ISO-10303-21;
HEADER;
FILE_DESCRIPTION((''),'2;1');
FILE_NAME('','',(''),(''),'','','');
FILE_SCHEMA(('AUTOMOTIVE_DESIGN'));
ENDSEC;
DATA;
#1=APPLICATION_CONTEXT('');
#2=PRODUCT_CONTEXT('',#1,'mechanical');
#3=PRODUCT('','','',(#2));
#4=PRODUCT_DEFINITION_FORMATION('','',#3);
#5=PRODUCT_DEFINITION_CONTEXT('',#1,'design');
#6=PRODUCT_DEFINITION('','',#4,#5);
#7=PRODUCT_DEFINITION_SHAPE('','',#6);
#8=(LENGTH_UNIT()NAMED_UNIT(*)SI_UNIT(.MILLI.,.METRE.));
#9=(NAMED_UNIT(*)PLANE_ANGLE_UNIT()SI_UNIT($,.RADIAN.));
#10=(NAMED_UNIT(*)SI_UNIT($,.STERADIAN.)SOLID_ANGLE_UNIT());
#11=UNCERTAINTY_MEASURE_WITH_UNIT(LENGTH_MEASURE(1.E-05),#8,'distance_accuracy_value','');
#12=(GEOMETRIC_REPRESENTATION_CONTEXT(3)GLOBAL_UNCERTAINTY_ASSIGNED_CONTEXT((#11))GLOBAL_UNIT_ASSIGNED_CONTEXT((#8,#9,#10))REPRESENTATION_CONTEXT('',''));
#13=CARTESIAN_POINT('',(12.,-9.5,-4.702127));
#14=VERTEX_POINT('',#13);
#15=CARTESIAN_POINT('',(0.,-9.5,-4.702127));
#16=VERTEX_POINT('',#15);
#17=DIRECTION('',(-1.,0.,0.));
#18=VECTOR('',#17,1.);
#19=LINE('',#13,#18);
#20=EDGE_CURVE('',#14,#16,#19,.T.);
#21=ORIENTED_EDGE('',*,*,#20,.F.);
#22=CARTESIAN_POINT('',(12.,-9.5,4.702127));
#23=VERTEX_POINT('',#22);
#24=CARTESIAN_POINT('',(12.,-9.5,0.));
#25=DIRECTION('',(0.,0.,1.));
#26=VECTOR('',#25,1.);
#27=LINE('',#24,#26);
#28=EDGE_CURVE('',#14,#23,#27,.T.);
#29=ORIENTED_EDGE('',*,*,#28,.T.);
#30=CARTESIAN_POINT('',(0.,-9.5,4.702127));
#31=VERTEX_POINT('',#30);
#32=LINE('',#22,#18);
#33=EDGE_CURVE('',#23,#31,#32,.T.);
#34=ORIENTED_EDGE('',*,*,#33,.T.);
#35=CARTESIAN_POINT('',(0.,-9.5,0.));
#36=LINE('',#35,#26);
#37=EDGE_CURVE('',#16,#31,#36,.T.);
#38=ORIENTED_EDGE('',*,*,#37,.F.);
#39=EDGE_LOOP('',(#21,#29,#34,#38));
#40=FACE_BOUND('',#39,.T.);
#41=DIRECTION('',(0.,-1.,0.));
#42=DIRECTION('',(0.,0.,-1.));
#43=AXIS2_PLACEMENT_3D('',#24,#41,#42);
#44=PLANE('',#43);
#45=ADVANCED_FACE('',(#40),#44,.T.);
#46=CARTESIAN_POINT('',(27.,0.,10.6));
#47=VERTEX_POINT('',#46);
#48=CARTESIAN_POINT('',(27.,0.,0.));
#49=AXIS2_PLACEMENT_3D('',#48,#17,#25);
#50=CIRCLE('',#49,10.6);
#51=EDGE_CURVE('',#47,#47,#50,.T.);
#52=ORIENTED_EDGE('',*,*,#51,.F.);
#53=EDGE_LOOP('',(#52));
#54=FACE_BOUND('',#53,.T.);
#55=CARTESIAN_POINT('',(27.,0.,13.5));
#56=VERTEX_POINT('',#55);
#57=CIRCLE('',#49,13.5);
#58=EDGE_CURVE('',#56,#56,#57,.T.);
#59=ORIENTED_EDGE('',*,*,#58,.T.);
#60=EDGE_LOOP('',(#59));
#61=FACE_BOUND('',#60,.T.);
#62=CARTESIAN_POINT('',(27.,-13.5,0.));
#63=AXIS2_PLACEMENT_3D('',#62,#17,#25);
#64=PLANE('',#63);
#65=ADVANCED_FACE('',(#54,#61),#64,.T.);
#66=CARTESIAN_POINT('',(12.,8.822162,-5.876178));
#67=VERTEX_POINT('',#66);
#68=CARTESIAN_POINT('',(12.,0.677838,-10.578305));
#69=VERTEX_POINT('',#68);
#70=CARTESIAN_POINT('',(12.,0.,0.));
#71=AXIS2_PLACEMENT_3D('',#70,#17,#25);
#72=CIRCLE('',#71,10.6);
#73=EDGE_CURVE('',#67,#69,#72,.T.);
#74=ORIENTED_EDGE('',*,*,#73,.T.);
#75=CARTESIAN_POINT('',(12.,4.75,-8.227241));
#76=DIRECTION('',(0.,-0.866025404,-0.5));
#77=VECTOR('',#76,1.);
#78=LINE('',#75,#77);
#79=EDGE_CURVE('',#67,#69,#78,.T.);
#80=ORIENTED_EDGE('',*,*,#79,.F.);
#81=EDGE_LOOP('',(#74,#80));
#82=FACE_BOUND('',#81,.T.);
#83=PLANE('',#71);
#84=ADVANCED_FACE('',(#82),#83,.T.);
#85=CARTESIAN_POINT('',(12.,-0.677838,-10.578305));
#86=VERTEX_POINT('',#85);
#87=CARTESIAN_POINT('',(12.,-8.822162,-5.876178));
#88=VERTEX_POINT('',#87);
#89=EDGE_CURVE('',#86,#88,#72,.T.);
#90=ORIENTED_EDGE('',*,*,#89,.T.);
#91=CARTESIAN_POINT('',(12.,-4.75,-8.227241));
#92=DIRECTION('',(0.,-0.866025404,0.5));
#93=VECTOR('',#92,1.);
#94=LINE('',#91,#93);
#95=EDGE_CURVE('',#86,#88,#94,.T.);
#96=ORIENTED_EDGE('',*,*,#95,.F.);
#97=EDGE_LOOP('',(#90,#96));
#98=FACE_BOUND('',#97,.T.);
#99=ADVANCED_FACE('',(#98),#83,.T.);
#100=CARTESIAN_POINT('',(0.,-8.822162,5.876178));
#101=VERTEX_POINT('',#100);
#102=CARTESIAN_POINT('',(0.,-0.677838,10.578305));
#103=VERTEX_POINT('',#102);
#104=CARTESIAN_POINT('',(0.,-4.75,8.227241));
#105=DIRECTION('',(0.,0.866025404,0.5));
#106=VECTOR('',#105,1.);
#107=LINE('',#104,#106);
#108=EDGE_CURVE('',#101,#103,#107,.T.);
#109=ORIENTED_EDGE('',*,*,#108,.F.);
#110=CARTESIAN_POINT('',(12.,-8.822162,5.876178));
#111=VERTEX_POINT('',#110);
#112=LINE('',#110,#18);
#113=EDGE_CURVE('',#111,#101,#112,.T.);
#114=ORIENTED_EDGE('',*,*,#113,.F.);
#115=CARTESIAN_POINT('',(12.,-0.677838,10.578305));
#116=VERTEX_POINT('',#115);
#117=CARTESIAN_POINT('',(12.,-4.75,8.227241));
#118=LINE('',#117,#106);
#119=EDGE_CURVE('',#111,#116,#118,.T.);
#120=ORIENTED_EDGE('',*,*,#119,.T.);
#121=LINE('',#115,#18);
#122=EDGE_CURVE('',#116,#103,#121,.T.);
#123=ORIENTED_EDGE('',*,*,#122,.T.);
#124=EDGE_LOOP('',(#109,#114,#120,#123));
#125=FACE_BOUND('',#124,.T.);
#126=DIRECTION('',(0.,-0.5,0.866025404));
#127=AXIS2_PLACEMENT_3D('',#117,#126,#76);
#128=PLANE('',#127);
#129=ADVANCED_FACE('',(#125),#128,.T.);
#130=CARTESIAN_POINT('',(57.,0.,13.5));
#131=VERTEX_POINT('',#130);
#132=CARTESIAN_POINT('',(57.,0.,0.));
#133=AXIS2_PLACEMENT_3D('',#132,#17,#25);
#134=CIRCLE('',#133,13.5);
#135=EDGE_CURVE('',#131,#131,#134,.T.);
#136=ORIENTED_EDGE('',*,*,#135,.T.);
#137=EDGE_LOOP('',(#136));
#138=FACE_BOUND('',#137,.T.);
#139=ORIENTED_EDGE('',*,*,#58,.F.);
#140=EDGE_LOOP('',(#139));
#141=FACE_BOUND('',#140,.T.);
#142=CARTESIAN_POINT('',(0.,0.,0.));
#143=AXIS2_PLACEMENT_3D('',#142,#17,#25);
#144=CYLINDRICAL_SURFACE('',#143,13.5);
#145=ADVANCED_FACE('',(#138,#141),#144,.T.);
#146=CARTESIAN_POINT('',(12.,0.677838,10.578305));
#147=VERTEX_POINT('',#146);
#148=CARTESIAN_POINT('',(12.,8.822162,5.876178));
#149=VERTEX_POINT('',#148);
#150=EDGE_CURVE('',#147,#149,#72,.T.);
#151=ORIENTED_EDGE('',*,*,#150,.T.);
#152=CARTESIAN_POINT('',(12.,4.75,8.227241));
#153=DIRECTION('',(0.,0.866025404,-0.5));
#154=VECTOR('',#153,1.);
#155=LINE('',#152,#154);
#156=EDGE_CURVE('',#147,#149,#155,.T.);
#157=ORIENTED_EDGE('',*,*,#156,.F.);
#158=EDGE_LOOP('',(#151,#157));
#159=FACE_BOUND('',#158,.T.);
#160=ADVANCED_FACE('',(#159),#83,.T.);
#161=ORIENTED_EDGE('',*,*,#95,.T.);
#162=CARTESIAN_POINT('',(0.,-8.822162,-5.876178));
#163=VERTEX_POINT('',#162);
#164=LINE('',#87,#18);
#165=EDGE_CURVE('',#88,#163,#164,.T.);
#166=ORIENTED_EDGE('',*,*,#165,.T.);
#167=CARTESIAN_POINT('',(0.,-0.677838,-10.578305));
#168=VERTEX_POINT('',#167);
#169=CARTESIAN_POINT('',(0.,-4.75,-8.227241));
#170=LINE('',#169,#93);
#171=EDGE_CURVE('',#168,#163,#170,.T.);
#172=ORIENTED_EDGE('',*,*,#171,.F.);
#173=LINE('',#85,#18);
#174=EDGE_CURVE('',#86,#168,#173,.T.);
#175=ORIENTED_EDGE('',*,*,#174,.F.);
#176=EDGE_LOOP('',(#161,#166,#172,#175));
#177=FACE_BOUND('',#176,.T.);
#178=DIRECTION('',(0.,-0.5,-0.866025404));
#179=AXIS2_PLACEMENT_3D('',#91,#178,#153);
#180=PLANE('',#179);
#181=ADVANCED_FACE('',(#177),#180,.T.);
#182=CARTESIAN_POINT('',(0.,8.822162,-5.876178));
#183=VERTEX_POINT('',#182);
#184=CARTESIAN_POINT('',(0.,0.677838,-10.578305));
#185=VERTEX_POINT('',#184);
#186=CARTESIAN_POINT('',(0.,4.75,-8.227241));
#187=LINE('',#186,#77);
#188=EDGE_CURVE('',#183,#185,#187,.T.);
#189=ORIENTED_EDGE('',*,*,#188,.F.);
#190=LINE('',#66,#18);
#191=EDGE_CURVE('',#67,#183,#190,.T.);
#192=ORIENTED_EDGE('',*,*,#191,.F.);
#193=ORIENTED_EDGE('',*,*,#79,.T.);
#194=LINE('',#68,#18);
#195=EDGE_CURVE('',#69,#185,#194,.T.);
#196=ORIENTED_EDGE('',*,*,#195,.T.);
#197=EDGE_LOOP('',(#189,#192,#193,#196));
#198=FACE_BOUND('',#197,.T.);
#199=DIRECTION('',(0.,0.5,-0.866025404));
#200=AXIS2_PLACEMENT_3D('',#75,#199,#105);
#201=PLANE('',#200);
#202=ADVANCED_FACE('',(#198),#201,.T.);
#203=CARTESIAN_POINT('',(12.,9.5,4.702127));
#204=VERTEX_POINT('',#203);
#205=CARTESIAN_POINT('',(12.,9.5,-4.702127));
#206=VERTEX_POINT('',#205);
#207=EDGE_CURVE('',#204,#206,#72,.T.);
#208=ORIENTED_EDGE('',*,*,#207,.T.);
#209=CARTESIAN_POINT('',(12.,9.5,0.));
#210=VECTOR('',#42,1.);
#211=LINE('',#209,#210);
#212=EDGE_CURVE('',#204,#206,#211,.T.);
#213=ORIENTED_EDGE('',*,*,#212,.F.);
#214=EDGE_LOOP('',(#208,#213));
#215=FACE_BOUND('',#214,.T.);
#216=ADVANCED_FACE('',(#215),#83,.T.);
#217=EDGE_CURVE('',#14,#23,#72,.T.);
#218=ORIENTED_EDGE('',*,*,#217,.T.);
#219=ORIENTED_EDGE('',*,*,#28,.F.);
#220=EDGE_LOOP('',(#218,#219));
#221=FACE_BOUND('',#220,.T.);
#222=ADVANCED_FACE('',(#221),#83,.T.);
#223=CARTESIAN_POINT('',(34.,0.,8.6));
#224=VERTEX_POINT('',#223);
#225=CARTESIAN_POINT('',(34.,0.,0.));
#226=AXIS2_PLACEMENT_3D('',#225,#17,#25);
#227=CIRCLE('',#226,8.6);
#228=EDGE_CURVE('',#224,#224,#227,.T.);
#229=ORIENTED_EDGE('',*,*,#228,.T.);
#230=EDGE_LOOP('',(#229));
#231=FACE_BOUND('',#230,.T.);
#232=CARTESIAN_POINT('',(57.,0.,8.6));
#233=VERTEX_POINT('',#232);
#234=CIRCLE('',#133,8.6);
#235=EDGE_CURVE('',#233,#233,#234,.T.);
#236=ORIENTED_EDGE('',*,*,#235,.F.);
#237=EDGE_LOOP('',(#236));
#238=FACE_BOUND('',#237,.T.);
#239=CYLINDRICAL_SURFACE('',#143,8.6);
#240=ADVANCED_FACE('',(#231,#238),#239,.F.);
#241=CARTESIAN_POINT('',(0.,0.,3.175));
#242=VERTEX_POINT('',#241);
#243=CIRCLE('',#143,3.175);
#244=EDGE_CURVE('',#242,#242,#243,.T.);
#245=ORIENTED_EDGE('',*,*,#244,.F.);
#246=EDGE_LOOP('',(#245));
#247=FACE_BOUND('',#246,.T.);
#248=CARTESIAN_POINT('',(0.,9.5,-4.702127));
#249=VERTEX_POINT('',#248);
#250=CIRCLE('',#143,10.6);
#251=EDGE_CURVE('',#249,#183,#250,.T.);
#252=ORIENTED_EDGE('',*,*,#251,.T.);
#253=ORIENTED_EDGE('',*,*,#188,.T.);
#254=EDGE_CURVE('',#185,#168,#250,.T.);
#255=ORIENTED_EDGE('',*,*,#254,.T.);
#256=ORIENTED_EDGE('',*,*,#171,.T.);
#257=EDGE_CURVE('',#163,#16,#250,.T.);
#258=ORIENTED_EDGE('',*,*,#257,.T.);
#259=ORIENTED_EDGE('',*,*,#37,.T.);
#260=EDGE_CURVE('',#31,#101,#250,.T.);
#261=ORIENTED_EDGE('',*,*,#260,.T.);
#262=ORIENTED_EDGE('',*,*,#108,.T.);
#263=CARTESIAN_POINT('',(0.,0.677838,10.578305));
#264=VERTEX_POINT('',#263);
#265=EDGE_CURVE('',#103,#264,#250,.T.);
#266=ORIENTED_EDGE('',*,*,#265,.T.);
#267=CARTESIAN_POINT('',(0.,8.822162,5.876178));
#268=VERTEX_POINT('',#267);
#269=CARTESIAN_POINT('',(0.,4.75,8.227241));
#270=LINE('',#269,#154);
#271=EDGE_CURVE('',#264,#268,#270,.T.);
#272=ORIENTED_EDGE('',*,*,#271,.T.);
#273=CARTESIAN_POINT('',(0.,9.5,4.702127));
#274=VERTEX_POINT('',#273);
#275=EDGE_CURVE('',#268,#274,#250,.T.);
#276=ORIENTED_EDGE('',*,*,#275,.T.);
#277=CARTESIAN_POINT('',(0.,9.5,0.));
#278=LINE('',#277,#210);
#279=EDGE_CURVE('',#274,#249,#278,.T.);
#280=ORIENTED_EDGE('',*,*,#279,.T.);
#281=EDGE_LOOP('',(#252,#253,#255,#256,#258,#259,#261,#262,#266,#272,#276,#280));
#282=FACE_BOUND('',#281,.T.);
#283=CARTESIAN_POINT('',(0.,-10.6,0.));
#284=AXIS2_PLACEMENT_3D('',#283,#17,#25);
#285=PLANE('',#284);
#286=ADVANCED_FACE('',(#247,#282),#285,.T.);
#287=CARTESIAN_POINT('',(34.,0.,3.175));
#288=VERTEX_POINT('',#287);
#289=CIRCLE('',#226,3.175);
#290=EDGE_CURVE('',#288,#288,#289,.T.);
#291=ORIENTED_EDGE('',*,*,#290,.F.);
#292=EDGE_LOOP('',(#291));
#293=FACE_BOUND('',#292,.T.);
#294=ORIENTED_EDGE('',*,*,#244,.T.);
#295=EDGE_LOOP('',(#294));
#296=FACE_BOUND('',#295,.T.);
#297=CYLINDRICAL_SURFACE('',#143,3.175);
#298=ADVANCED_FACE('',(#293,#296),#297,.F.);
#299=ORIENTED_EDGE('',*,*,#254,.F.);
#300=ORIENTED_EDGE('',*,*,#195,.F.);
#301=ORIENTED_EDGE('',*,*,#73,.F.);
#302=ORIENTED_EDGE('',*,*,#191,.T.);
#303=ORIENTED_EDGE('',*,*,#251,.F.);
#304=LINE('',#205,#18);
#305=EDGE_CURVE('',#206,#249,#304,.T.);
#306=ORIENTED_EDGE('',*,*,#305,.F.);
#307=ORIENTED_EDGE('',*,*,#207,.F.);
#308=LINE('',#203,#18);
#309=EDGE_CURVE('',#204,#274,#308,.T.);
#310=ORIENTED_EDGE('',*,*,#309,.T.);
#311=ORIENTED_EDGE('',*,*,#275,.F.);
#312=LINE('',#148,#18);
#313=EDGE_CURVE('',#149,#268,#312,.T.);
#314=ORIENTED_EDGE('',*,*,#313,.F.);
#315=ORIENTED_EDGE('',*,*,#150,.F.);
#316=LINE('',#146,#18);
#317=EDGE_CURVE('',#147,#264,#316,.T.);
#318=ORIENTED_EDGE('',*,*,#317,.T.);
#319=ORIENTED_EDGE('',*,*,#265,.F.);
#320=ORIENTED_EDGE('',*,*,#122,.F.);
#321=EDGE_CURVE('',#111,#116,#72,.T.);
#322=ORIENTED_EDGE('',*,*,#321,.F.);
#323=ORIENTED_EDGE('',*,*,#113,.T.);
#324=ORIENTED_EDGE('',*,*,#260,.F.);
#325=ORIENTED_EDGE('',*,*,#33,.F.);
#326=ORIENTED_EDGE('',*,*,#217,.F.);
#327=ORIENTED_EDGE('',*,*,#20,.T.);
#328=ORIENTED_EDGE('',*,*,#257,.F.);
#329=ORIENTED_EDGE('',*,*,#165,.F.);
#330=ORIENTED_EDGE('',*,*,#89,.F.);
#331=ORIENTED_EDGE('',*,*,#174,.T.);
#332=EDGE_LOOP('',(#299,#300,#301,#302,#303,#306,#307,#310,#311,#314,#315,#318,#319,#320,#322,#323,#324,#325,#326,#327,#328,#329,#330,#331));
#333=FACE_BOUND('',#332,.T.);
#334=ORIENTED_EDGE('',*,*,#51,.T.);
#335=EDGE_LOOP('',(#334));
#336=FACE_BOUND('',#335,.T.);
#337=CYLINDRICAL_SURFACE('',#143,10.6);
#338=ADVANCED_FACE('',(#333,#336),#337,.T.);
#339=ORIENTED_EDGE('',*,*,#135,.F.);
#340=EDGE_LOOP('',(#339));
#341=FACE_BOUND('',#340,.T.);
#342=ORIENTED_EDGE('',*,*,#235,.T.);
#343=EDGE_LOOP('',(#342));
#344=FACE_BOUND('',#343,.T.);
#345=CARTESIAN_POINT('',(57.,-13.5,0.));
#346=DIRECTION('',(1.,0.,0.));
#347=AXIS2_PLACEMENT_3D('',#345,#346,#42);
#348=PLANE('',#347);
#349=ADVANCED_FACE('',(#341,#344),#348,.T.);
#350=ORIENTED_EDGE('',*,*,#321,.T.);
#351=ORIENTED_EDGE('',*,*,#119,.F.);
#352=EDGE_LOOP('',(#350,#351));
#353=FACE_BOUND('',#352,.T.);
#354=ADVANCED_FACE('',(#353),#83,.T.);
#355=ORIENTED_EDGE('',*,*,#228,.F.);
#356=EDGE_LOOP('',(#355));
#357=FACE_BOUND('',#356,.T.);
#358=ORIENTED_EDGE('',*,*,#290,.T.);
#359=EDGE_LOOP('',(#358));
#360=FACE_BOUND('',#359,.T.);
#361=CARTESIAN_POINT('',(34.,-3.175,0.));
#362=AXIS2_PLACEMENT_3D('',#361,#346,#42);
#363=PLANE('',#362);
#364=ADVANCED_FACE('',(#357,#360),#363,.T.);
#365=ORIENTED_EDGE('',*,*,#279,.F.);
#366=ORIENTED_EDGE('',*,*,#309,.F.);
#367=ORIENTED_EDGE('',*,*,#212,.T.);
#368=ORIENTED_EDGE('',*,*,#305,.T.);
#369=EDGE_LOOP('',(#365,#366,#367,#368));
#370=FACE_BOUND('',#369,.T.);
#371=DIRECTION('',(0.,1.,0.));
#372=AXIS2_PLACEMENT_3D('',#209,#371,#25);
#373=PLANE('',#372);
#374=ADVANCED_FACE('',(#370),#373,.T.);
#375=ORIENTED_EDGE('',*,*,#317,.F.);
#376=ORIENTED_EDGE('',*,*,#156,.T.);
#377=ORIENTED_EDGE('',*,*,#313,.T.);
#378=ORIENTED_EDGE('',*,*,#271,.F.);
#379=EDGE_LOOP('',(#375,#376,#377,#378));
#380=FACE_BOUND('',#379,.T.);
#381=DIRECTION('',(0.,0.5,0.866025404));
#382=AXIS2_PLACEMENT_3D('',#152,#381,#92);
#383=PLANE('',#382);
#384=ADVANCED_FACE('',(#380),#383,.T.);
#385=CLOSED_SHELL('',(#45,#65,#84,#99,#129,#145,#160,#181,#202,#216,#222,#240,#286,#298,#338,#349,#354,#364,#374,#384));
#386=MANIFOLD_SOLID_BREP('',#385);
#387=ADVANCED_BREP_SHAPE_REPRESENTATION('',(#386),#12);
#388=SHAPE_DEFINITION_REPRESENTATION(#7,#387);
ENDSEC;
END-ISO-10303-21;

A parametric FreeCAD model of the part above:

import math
import FreeCAD as App
import Part
import Sketcher

V = App.Vector
Q = App.Units.Quantity


def add_polygon(sketch, points):
    """Adds a closed chain of lines whose ends are joined by coincident constraints."""
    first, n = sketch.GeometryCount, len(points)
    for a, b in zip(points, points[1:] + points[:1]):
        sketch.addGeometry(Part.LineSegment(App.Vector(*a, 0), App.Vector(*b, 0)), False)
    for i in range(n):
        sketch.addConstraint(Sketcher.Constraint("Coincident", first + i, 2, first + (i + 1) % n, 1))

doc = App.newDocument("Part")
body = doc.addObject("PartDesign::Body", "Body")

# Sketch on XY plane
sketch1 = body.newObject("Sketcher::SketchObject", "Sketch")
sketch1.AttachmentSupport = (doc.getObject("XY_Plane"), [""])
sketch1.MapMode = "FlatFace"
add_polygon(sketch1, [(27, -13.5), (57, -13.5), (57, -8.6), (34, -8.6), (34, -3.175), (0, -3.175), (0, -10.6), (27, -10.6)])  # lines 0-7
sketch1.addConstraint(Sketcher.Constraint("Horizontal", 0))
sketch1.addConstraint(Sketcher.Constraint("Vertical", 1))
sketch1.addConstraint(Sketcher.Constraint("Horizontal", 2))
sketch1.addConstraint(Sketcher.Constraint("Vertical", 3))
sketch1.addConstraint(Sketcher.Constraint("Horizontal", 4))
sketch1.addConstraint(Sketcher.Constraint("Vertical", 5))
sketch1.addConstraint(Sketcher.Constraint("Horizontal", 6))
sketch1.addConstraint(Sketcher.Constraint("Vertical", 7))
sketch1.addConstraint(Sketcher.Constraint("PointOnObject", 4, 2, -2))
sketch1.addConstraint(Sketcher.Constraint("DistanceX", 0, 1, 0, 2, Q("30 mm")))
sketch1.addConstraint(Sketcher.Constraint("DistanceX", 2, 2, 2, 1, Q("23 mm")))
sketch1.addConstraint(Sketcher.Constraint("DistanceX", 4, 2, 4, 1, Q("34 mm")))
sketch1.addConstraint(Sketcher.Constraint("DistanceY", 1, 1, 1, 2, Q("4.9 mm")))
sketch1.addConstraint(Sketcher.Constraint("DistanceY", 7, 2, 7, 1, Q("2.9 mm")))
sketch1.addConstraint(Sketcher.Constraint("DistanceY", 0, 2, -1, 1, Q("13.5 mm")))
sketch1.addConstraint(Sketcher.Constraint("DistanceY", 3, 1, 3, 2, Q("5.425 mm")))
revolution = body.newObject("PartDesign::Revolution", "Revolution")
revolution.Profile = sketch1
revolution.ReferenceAxis = (sketch1, ["H_Axis"])
revolution.Angle = 360

# Sketch on YZ plane
sketch2 = body.newObject("Sketcher::SketchObject", "Sketch001")
sketch2.AttachmentSupport = (doc.getObject("YZ_Plane"), [""])
sketch2.MapMode = "FlatFace"
sketch2.addGeometry(Part.LineSegment(V(0.677838, -10.578305, 0), V(8.822162, -5.876178, 0)), False)
sketch2.addGeometry(Part.ArcOfCircle(Part.Circle(V(0, 0, 0), V(0, 0, 1), 10.6), math.radians(-86.333604), math.radians(-33.666396)), False)
sketch2.addGeometry(Part.ArcOfCircle(Part.Circle(V(0, 0, 0), V(0, 0, 1), 10.6), math.radians(-26.333604), math.radians(26.333604)), False)
sketch2.addGeometry(Part.LineSegment(V(9.5, -4.702127, 0), V(9.5, 4.702127, 0)), False)
sketch2.addGeometry(Part.LineSegment(V(-8.822162, -5.876178, 0), V(-0.677838, -10.578305, 0)), False)
sketch2.addGeometry(Part.ArcOfCircle(Part.Circle(V(0, 0, 0), V(0, 0, 1), 10.6), math.radians(-146.333604), math.radians(-93.666396)), False)
sketch2.addGeometry(Part.ArcOfCircle(Part.Circle(V(0, 0, 0), V(0, 0, 1), 10.6), math.radians(33.666396), math.radians(86.333604)), False)
sketch2.addGeometry(Part.LineSegment(V(8.822162, 5.876178, 0), V(0.677838, 10.578305, 0)), False)
sketch2.addGeometry(Part.LineSegment(V(-9.5, 4.702127, 0), V(-9.5, -4.702127, 0)), False)
sketch2.addGeometry(Part.ArcOfCircle(Part.Circle(V(0, 0, 0), V(0, 0, 1), 10.6), math.radians(153.666396), math.radians(206.333604)), False)
sketch2.addGeometry(Part.ArcOfCircle(Part.Circle(V(0, 0, 0), V(0, 0, 1), 10.6), math.radians(93.666396), math.radians(146.333604)), False)
sketch2.addGeometry(Part.LineSegment(V(-0.677838, 10.578305, 0), V(-8.822162, 5.876178, 0)), False)
sketch2.addConstraint(Sketcher.Constraint("Coincident", 0, 1, 1, 1))
sketch2.addConstraint(Sketcher.Constraint("Coincident", 1, 2, 0, 2))
sketch2.addConstraint(Sketcher.Constraint("Coincident", 2, 1, 3, 1))
sketch2.addConstraint(Sketcher.Constraint("Coincident", 3, 2, 2, 2))
sketch2.addConstraint(Sketcher.Constraint("Coincident", 4, 1, 5, 1))
sketch2.addConstraint(Sketcher.Constraint("Coincident", 5, 2, 4, 2))
sketch2.addConstraint(Sketcher.Constraint("Coincident", 6, 1, 7, 1))
sketch2.addConstraint(Sketcher.Constraint("Coincident", 7, 2, 6, 2))
sketch2.addConstraint(Sketcher.Constraint("Coincident", 8, 1, 9, 1))
sketch2.addConstraint(Sketcher.Constraint("Coincident", 9, 2, 8, 2))
sketch2.addConstraint(Sketcher.Constraint("Coincident", 10, 1, 11, 1))
sketch2.addConstraint(Sketcher.Constraint("Coincident", 11, 2, 10, 2))
sketch2.addConstraint(Sketcher.Constraint("Vertical", 3))
sketch2.addConstraint(Sketcher.Constraint("Vertical", 8))
sketch2.addConstraint(Sketcher.Constraint("Coincident", 1, 3, -1, 1))
sketch2.addConstraint(Sketcher.Constraint("Coincident", 2, 3, -1, 1))
sketch2.addConstraint(Sketcher.Constraint("Coincident", 5, 3, -1, 1))
sketch2.addConstraint(Sketcher.Constraint("Coincident", 6, 3, -1, 1))
sketch2.addConstraint(Sketcher.Constraint("Coincident", 9, 3, -1, 1))
sketch2.addConstraint(Sketcher.Constraint("Coincident", 10, 3, -1, 1))
sketch2.addConstraint(Sketcher.Constraint("Equal", 1, 2))
sketch2.addConstraint(Sketcher.Constraint("Equal", 2, 5))
sketch2.addConstraint(Sketcher.Constraint("Equal", 5, 6))
sketch2.addConstraint(Sketcher.Constraint("Equal", 6, 9))
sketch2.addConstraint(Sketcher.Constraint("Equal", 9, 10))
sketch2.addConstraint(Sketcher.Constraint("Parallel", 4, 7))
sketch2.addConstraint(Sketcher.Constraint("Parallel", 0, 11))
sketch2.addConstraint(Sketcher.Constraint("Horizontal", 1, 2, 4, 1))
sketch2.addConstraint(Sketcher.Constraint("Horizontal", 0, 1, 5, 2))
sketch2.addConstraint(Sketcher.Constraint("Horizontal", 3, 2, 8, 1))
sketch2.addConstraint(Sketcher.Constraint("Horizontal", 7, 2, 10, 1))
sketch2.addConstraint(Sketcher.Constraint("Vertical", 1, 2, 6, 1))
sketch2.addConstraint(Sketcher.Constraint("Radius", 1, Q("10.6 mm")))
sketch2.addConstraint(Sketcher.Constraint("Angle", 0, Q("30 deg")))
sketch2.addConstraint(Sketcher.Constraint("DistanceX", -1, 1, 2, 1, Q("9.5 mm")))
sketch2.addConstraint(Sketcher.Constraint("DistanceX", 4, 1, 0, 1, Q("9.5 mm")))
pocket1 = body.newObject("PartDesign::Pocket", "Pocket")
pocket1.Profile = sketch2
pocket1.Length = 12
pocket1.Reversed = True

doc.recompute()
